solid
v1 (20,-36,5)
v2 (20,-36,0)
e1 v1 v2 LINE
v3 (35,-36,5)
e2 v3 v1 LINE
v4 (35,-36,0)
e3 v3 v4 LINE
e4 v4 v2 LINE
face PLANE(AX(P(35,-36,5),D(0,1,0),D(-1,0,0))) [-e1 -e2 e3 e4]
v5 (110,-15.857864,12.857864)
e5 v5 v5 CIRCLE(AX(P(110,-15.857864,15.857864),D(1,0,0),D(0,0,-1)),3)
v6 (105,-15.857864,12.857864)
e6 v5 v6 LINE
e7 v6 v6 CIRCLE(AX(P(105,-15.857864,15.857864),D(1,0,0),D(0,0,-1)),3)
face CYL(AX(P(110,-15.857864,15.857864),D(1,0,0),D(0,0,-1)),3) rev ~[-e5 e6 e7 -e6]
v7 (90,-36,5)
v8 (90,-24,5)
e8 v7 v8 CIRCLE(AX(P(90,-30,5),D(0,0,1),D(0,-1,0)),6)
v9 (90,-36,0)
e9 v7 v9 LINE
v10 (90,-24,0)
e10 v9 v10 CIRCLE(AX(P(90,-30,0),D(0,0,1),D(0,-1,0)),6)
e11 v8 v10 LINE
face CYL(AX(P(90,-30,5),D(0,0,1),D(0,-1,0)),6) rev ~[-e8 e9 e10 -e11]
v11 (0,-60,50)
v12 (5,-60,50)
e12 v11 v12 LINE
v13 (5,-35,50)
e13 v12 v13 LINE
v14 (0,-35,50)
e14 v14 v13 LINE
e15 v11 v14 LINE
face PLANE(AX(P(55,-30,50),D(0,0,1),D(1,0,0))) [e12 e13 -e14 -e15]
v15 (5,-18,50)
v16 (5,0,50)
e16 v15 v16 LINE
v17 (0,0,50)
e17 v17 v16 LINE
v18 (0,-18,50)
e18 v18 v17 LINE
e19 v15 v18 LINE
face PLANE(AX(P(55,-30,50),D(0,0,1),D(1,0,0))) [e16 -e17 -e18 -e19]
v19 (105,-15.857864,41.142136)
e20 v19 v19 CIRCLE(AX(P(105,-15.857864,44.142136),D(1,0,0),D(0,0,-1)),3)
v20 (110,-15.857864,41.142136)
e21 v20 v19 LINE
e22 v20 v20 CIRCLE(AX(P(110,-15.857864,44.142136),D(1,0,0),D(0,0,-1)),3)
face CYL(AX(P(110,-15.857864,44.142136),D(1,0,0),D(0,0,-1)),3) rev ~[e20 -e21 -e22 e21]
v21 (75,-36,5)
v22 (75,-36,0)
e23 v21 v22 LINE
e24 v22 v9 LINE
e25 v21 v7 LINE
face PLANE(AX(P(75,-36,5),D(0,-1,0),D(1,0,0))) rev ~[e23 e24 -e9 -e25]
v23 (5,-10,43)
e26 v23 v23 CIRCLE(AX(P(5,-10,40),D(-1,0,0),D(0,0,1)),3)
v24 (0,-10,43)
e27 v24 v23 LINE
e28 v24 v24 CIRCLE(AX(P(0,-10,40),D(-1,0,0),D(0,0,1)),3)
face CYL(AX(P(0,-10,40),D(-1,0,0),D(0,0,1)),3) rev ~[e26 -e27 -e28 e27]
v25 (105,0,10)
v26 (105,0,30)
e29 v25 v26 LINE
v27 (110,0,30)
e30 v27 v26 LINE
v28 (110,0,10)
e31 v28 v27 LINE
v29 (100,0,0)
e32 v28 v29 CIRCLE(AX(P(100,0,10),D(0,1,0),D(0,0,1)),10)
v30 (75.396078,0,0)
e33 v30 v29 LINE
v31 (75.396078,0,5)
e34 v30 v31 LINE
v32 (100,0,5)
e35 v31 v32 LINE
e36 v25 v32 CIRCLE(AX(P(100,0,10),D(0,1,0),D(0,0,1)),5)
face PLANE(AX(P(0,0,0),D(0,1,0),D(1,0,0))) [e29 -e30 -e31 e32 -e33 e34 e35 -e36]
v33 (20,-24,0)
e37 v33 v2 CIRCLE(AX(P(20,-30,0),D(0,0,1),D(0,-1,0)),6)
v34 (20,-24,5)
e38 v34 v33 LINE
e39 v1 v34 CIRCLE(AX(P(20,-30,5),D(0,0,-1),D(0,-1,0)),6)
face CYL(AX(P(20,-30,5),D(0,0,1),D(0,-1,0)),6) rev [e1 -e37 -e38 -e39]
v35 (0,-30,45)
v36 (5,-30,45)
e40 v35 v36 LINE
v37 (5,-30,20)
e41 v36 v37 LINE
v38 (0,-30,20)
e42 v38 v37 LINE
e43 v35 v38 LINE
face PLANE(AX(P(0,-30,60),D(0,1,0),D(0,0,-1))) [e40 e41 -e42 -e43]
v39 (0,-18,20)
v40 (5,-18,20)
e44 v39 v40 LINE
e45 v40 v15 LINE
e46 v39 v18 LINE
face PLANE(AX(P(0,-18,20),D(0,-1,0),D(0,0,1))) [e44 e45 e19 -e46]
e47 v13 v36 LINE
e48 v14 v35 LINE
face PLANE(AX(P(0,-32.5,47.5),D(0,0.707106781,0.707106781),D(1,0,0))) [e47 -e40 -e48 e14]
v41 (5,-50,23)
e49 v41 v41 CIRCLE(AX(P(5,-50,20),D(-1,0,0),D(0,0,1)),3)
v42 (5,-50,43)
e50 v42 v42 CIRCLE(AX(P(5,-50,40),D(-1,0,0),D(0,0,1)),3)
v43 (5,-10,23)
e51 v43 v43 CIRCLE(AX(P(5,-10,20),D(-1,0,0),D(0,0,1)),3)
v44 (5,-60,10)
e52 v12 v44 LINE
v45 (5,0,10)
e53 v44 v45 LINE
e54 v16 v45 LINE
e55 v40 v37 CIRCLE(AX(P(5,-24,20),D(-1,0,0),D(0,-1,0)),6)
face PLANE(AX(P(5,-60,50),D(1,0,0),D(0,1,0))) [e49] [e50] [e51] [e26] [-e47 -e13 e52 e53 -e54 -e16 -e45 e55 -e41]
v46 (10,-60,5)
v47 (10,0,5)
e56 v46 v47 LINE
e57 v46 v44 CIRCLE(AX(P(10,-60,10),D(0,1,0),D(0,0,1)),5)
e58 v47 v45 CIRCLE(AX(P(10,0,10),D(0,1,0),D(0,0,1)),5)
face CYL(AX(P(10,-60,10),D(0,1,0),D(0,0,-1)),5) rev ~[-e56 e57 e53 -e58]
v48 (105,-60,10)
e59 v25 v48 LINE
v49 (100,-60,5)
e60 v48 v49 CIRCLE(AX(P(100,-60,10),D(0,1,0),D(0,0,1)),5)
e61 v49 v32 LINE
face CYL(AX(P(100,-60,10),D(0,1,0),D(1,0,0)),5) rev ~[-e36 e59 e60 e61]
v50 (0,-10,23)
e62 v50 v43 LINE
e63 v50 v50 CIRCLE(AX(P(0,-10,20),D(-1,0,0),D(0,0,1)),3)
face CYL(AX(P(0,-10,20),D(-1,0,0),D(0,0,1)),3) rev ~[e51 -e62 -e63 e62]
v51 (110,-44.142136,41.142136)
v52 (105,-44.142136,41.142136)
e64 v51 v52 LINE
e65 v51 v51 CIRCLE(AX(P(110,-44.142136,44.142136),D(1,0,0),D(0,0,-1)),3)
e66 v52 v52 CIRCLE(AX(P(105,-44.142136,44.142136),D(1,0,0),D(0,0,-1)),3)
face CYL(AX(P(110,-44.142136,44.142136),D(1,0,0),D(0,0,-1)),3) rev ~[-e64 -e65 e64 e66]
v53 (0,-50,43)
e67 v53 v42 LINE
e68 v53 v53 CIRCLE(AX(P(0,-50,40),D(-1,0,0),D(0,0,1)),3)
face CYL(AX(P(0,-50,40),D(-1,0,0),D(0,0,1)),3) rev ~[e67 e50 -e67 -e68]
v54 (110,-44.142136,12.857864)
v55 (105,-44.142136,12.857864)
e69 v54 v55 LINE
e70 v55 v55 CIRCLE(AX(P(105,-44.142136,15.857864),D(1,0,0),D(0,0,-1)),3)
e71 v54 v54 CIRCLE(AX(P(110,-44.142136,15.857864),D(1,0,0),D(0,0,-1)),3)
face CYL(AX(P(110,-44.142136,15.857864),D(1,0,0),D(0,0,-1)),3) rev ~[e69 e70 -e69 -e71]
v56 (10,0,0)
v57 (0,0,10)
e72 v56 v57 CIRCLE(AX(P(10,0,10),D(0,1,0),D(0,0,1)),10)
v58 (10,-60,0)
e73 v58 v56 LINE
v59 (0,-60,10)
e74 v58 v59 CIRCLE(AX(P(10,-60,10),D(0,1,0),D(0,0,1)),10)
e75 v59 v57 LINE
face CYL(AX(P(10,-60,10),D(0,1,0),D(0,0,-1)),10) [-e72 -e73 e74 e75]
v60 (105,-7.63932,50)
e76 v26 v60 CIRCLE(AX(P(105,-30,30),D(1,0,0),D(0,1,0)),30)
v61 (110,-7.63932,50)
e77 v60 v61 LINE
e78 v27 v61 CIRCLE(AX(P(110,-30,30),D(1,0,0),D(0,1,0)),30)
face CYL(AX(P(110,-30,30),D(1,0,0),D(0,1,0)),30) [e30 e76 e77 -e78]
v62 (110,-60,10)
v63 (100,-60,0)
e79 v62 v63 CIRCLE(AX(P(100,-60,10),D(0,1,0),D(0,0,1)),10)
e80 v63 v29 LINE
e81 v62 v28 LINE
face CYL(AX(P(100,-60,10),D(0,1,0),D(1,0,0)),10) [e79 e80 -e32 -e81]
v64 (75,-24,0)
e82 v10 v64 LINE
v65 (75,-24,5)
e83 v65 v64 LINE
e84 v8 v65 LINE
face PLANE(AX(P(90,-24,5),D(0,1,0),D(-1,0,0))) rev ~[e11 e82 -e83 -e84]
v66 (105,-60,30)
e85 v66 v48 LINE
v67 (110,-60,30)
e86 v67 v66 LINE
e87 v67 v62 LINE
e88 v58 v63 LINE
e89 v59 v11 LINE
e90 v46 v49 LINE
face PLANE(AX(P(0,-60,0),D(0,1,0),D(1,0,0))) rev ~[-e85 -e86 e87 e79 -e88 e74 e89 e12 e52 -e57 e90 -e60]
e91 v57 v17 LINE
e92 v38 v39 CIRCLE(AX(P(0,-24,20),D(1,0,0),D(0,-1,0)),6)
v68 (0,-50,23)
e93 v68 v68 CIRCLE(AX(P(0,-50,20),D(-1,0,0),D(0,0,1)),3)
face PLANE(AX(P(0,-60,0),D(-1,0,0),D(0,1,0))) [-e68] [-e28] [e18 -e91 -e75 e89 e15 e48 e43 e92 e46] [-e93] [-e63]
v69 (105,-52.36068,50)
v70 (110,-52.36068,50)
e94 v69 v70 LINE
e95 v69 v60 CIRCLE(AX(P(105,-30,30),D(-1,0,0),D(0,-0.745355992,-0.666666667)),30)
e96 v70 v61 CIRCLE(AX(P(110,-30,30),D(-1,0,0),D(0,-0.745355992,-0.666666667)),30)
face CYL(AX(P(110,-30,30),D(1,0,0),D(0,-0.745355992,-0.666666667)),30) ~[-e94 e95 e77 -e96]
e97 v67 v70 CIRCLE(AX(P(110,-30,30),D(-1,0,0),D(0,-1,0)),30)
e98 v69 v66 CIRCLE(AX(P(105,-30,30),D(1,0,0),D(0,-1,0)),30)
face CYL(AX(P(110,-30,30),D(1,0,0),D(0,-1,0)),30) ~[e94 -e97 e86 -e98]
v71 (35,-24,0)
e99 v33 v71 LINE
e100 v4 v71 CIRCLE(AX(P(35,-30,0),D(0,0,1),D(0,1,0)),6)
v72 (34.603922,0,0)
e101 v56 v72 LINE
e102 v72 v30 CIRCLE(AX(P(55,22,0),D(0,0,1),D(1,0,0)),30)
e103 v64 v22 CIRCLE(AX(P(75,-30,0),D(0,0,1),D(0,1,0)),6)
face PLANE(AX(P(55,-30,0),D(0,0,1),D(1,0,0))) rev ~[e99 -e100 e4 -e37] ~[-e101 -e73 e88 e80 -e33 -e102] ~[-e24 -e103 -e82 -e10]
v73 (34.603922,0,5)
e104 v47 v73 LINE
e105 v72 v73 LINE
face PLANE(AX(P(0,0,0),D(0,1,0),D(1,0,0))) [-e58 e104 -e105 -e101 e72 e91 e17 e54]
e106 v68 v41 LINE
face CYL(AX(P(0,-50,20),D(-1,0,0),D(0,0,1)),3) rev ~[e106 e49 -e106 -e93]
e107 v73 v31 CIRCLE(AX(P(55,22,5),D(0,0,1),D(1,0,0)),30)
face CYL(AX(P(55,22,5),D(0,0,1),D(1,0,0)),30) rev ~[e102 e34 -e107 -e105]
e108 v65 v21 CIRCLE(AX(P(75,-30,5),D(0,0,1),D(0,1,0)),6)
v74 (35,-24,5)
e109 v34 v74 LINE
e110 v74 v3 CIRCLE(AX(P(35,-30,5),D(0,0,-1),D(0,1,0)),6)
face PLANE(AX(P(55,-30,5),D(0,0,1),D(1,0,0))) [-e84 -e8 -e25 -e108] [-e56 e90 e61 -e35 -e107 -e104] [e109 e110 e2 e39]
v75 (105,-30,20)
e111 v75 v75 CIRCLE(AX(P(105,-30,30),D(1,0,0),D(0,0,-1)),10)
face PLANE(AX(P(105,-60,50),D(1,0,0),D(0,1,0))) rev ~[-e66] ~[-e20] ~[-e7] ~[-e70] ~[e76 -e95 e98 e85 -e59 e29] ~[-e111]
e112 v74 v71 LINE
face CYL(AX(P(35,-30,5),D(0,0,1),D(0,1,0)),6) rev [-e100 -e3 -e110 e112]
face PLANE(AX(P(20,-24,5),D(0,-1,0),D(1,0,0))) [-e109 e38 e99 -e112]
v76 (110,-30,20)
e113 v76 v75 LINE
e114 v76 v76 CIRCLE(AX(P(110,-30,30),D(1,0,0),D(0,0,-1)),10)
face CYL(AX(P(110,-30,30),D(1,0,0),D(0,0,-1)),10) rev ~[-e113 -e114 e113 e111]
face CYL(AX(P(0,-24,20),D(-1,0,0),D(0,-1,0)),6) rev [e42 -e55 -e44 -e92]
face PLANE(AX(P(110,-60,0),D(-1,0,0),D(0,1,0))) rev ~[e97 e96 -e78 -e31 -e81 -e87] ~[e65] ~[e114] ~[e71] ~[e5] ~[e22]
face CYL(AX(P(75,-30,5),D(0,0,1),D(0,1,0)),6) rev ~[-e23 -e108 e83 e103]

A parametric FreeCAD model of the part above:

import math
import FreeCAD as App
import Part
import Sketcher
from FreeCAD import Vector


def edges_at(feature, points):
    """Names of the edges that pass closest to the given points."""
    edges = feature.Shape.Edges
    near = lambda p: min(range(len(edges)), key=lambda i: edges[i].distToShape(Part.Vertex(*p))[0])
    return sorted({f"Edge{near(p) + 1}" for p in points})


def add_polygon(sketch, points):
    """Adds a closed chain of lines whose ends are joined by coincident constraints."""
    first, n = sketch.GeometryCount, len(points)
    for a, b in zip(points, points[1:] + points[:1]):
        sketch.addGeometry(Part.LineSegment(App.Vector(*a, 0), App.Vector(*b, 0)), False)
    for i in range(n):
        sketch.addConstraint(Sketcher.Constraint("Coincident", first + i, 2, first + (i + 1) % n, 1))

doc = App.newDocument("Part")
params = doc.addObject("Spreadsheet::Sheet", "Params")
for row, (alias, value) in enumerate([
    ("sketch1_width", "110 mm"),
    ("sketch1_height", "60 mm"),
    ("pad1_length", "50 mm"),
    ("sketch2_width", "100 mm"),
    ("sketch2_height", "60 mm"),
    ("pocket1_length", "45 mm"),
    ("fillet_radius", "5 mm"),
    ("fillet2_radius", "10 mm"),
    ("sketch3_diameter", "60 mm"),
    ("sketch4_radius", "6 mm"),
    ("sketch4_width", "15 mm"),
    ("sketch5_radius", "6 mm"),
    ("sketch5_height", "40 mm"),
    ("sketch6_diameter", "6 mm"),
    ("sketch7_diameter", "6 mm"),
    ("sketch8_diameter", "6 mm"),
    ("sketch9_diameter", "6 mm"),
    ("sketch10_radius", "30 mm"),
    ("pad2_length", "5 mm"),
    ("sketch11_radius", "30 mm"),
    ("sketch11_height", "20 mm"),
    ("sketch12_radius", "30 mm"),
    ("sketch12_height", "20 mm"),
    ("sketch13_diameter", "20 mm"),
    ("sketch14_diameter", "6 mm"),
    ("sketch15_diameter", "6 mm"),
    ("sketch16_diameter", "6 mm"),
    ("sketch17_diameter", "6 mm"),
    ("chamfer_size", "5 mm"),
], start=1):
    params.set(f"A{row}", alias)
    params.set(f"B{row}", "=" + value)
    params.setAlias(f"B{row}", alias)

body = doc.addObject("PartDesign::Body", "Body")

sketch1 = body.newObject("Sketcher::SketchObject", "Sketch")
sketch1.AttachmentSupport = (doc.getObject("XY_Plane"), [""])
sketch1.MapMode = "FlatFace"
add_polygon(sketch1, [(0, 0), (0, -60), (110, -60), (110, 0)])
sketch1.addConstraint(Sketcher.Constraint("Vertical", 0))
sketch1.addConstraint(Sketcher.Constraint("Horizontal", 1))
sketch1.addConstraint(Sketcher.Constraint("Vertical", 2))
sketch1.addConstraint(Sketcher.Constraint("Horizontal", 3))
sketch1.addConstraint(Sketcher.Constraint("Coincident", 3, 2, -1, 1))
sketch1.addConstraint(Sketcher.Constraint("DistanceX", 1, 1, 1, 2, 110.0))
sketch1.addConstraint(Sketcher.Constraint("DistanceY", 0, 2, 0, 1, 60.0))
sketch1.setExpression("Constraints[9]", "Params.sketch1_width")
sketch1.setExpression("Constraints[10]", "Params.sketch1_height")
pad1 = body.newObject("PartDesign::Pad", "Pad")
pad1.Profile = sketch1
pad1.setExpression("Length", "Params.pad1_length")

sketch2 = body.newObject("Sketcher::SketchObject", "Sketch001")
sketch2.AttachmentSupport = (doc.getObject("XY_Plane"), [""])
sketch2.MapMode = "FlatFace"
sketch2.AttachmentOffset = App.Placement(Vector(0, 0, 50), App.Rotation())
add_polygon(sketch2, [(5, 0), (5, -60), (105, -60), (105, 0)])
sketch2.addConstraint(Sketcher.Constraint("Vertical", 0))
sketch2.addConstraint(Sketcher.Constraint("Horizontal", 1))
sketch2.addConstraint(Sketcher.Constraint("Vertical", 2))
sketch2.addConstraint(Sketcher.Constraint("Horizontal", 3))
sketch2.addConstraint(Sketcher.Constraint("PointOnObject", 2, 2, -1))
sketch2.addConstraint(Sketcher.Constraint("DistanceX", 1, 1, 1, 2, 100.0))
sketch2.addConstraint(Sketcher.Constraint("DistanceY", 0, 2, 0, 1, 60.0))
sketch2.addConstraint(Sketcher.Constraint("DistanceX", -1, 1, 0, 2, 5.0))
sketch2.setExpression("Constraints[9]", "Params.sketch2_width")
sketch2.setExpression("Constraints[10]", "Params.sketch2_height")
pocket1 = body.newObject("PartDesign::Pocket", "Pocket")
pocket1.Profile = sketch2
pocket1.setExpression("Length", "Params.pocket1_length")
doc.recompute()

fillet = body.newObject("PartDesign::Fillet", "Fillet")
fillet.Base = (pocket1, edges_at(pocket1, [(5, -30, 5), (105, -30, 5)]))
fillet.setExpression("Radius", "Params.fillet_radius")
doc.recompute()

fillet2 = body.newObject("PartDesign::Fillet", "Fillet001")
fillet2.Base = (fillet, edges_at(fillet, [(110, -30, 0), (0, -30, 0)]))
fillet2.setExpression("Radius", "Params.fillet2_radius")

sketch3 = body.newObject("Sketcher::SketchObject", "Sketch002")
sketch3.AttachmentSupport = (doc.getObject("XY_Plane"), [""])
sketch3.MapMode = "FlatFace"
sketch3.AttachmentOffset = App.Placement(Vector(0, 0, 5), App.Rotation())
sketch3.addGeometry(Part.Circle(Vector(55, 22, 0), Vector(0, 0, 1), 30), False)
sketch3.addConstraint(Sketcher.Constraint("Diameter", 0, 60.0))
sketch3.addConstraint(Sketcher.Constraint("DistanceX", -1, 1, 0, 3, 55.0))
sketch3.addConstraint(Sketcher.Constraint("DistanceY", -1, 1, 0, 3, 22.0))
sketch3.setExpression("Constraints[0]", "Params.sketch3_diameter")
pocket2 = body.newObject("PartDesign::Pocket", "Pocket001")
pocket2.Profile = sketch3
pocket2.Type = "ThroughAll"

sketch4 = body.newObject("Sketcher::SketchObject", "Sketch003")
sketch4.AttachmentSupport = (doc.getObject("XY_Plane"), [""])
sketch4.MapMode = "FlatFace"
sketch4.AttachmentOffset = App.Placement(Vector(0, 0, 5), App.Rotation())
sketch4.addGeometry(Part.LineSegment(Vector(35, -24, 0), Vector(20, -24, 0)), False)
sketch4.addGeometry(Part.ArcOfCircle(Part.Circle(Vector(20, -30, 0), Vector(0, 0, 1), 6), math.radians(90), math.radians(270)), False)
sketch4.addGeometry(Part.LineSegment(Vector(20, -36, 0), Vector(35, -36, 0)), False)
sketch4.addGeometry(Part.ArcOfCircle(Part.Circle(Vector(35, -30, 0), Vector(0, 0, 1), 6), math.radians(-90), math.radians(90)), False)
sketch4.addGeometry(Part.LineSegment(Vector(90, -24, 0), Vector(75, -24, 0)), False)
sketch4.addGeometry(Part.ArcOfCircle(Part.Circle(Vector(75, -30, 0), Vector(0, 0, 1), 6), math.radians(90), math.radians(270)), False)
sketch4.addGeometry(Part.LineSegment(Vector(75, -36, 0), Vector(90, -36, 0)), False)
sketch4.addGeometry(Part.ArcOfCircle(Part.Circle(Vector(90, -30, 0), Vector(0, 0, 1), 6), math.radians(-90), math.radians(90)), False)
sketch4.addConstraint(Sketcher.Constraint("Tangent", 0, 2, 1, 1))
sketch4.addConstraint(Sketcher.Constraint("Tangent", 1, 2, 2, 1))
sketch4.addConstraint(Sketcher.Constraint("Tangent", 2, 2, 3, 1))
sketch4.addConstraint(Sketcher.Constraint("Tangent", 3, 2, 0, 1))
sketch4.addConstraint(Sketcher.Constraint("Tangent", 4, 2, 5, 1))
sketch4.addConstraint(Sketcher.Constraint("Tangent", 5, 2, 6, 1))
sketch4.addConstraint(Sketcher.Constraint("Tangent", 6, 2, 7, 1))
sketch4.addConstraint(Sketcher.Constraint("Tangent", 7, 2, 4, 1))
sketch4.addConstraint(Sketcher.Constraint("Horizontal", 0))
sketch4.addConstraint(Sketcher.Constraint("Horizontal", 2))
sketch4.addConstraint(Sketcher.Constraint("Horizontal", 4))
sketch4.addConstraint(Sketcher.Constraint("Horizontal", 6))
sketch4.addConstraint(Sketcher.Constraint("Equal", 3, 5))
sketch4.addConstraint(Sketcher.Constraint("Horizontal", 3, 3, 5, 3))
sketch4.addConstraint(Sketcher.Constraint("Equal", 2, 4))
sketch4.addConstraint(Sketcher.Constraint("Radius", 1, 6.0))
sketch4.addConstraint(Sketcher.Constraint("DistanceX", 0, 2, 0, 1, 15.0))
sketch4.addConstraint(Sketcher.Constraint("DistanceX", -1, 1, 1, 3, 20.0))
sketch4.addConstraint(Sketcher.Constraint("DistanceY", 1, 3, -1, 1, 30.0))
sketch4.addConstraint(Sketcher.Constraint("DistanceX", -1, 1, 5, 3, 75.0))
sketch4.setExpression("Constraints[15]", "Params.sketch4_radius")
sketch4.setExpression("Constraints[16]", "Params.sketch4_width")
pocket3 = body.newObject("PartDesign::Pocket", "Pocket002")
pocket3.Profile = sketch4
pocket3.Type = "ThroughAll"

sketch5 = body.newObject("Sketcher::SketchObject", "Sketch004")
sketch5.AttachmentSupport = (doc.getObject("YZ_Plane"), [""])
sketch5.MapMode = "FlatFace"
sketch5.addGeometry(Part.LineSegment(Vector(-30, 20, 0), Vector(-30, 60, 0)), False)
sketch5.addGeometry(Part.ArcOfCircle(Part.Circle(Vector(-24, 60, 0), Vector(0, 0, 1), 6), math.radians(0), math.radians(180)), False)
sketch5.addGeometry(Part.LineSegment(Vector(-18, 60, 0), Vector(-18, 20, 0)), False)
sketch5.addGeometry(Part.ArcOfCircle(Part.Circle(Vector(-24, 20, 0), Vector(0, 0, 1), 6), math.radians(180), math.radians(360)), False)
sketch5.addConstraint(Sketcher.Constraint("Tangent", 0, 2, 1, 2))
sketch5.addConstraint(Sketcher.Constraint("Tangent", 1, 1, 2, 1))
sketch5.addConstraint(Sketcher.Constraint("Tangent", 2, 2, 3, 2))
sketch5.addConstraint(Sketcher.Constraint("Tangent", 3, 1, 0, 1))
sketch5.addConstraint(Sketcher.Constraint("Vertical", 0))
sketch5.addConstraint(Sketcher.Constraint("Vertical", 2))
sketch5.addConstraint(Sketcher.Constraint("Radius", 1, 6.0))
sketch5.addConstraint(Sketcher.Constraint("DistanceY", 0, 1, 0, 2, 40.0))
sketch5.addConstraint(Sketcher.Constraint("DistanceX", 1, 3, -1, 1, 24.0))
sketch5.addConstraint(Sketcher.Constraint("DistanceY", -1, 1, 1, 3, 60.0))
sketch5.setExpression("Constraints[6]", "Params.sketch5_radius")
sketch5.setExpression("Constraints[7]", "Params.sketch5_height")
pocket4 = body.newObject("PartDesign::Pocket", "Pocket003")
pocket4.Profile = sketch5
pocket4.Type = "UpToFirst"
pocket4.Reversed = True

sketch6 = body.newObject("Sketcher::SketchObject", "Sketch005")
sketch6.AttachmentSupport = (doc.getObject("YZ_Plane"), [""])
sketch6.MapMode = "FlatFace"
sketch6.addGeometry(Part.Circle(Vector(-10, 20, 0), Vector(0, 0, 1), 3), False)
sketch6.addConstraint(Sketcher.Constraint("Diameter", 0, 6.0))
sketch6.addConstraint(Sketcher.Constraint("DistanceX", 0, 3, -1, 1, 10.0))
sketch6.addConstraint(Sketcher.Constraint("DistanceY", -1, 1, 0, 3, 20.0))
sketch6.setExpression("Constraints[0]", "Params.sketch6_diameter")
pocket5 = body.newObject("PartDesign::Pocket", "Pocket004")
pocket5.Profile = sketch6
pocket5.Type = "UpToFirst"
pocket5.Reversed = True

sketch7 = body.newObject("Sketcher::SketchObject", "Sketch006")
sketch7.AttachmentSupport = (doc.getObject("YZ_Plane"), [""])
sketch7.MapMode = "FlatFace"
sketch7.addGeometry(Part.Circle(Vector(-10, 40, 0), Vector(0, 0, 1), 3), False)
sketch7.addConstraint(Sketcher.Constraint("Diameter", 0, 6.0))
sketch7.addConstraint(Sketcher.Constraint("DistanceX", 0, 3, -1, 1, 10.0))
sketch7.addConstraint(Sketcher.Constraint("DistanceY", -1, 1, 0, 3, 40.0))
sketch7.setExpression("Constraints[0]", "Params.sketch7_diameter")
pocket6 = body.newObject("PartDesign::Pocket", "Pocket005")
pocket6.Profile = sketch7
pocket6.Type = "UpToFirst"
pocket6.Reversed = True

sketch8 = body.newObject("Sketcher::SketchObject", "Sketch007")
sketch8.AttachmentSupport = (doc.getObject("YZ_Plane"), [""])
sketch8.MapMode = "FlatFace"
sketch8.addGeometry(Part.Circle(Vector(-50, 40, 0), Vector(0, 0, 1), 3), False)
sketch8.addConstraint(Sketcher.Constraint("Diameter", 0, 6.0))
sketch8.addConstraint(Sketcher.Constraint("DistanceX", 0, 3, -1, 1, 50.0))
sketch8.addConstraint(Sketcher.Constraint("DistanceY", -1, 1, 0, 3, 40.0))
sketch8.setExpression("Constraints[0]", "Params.sketch8_diameter")
pocket7 = body.newObject("PartDesign::Pocket", "Pocket006")
pocket7.Profile = sketch8
pocket7.Type = "UpToFirst"
pocket7.Reversed = True

sketch9 = body.newObject("Sketcher::SketchObject", "Sketch008")
sketch9.AttachmentSupport = (doc.getObject("YZ_Plane"), [""])
sketch9.MapMode = "FlatFace"
sketch9.addGeometry(Part.Circle(Vector(-50, 20, 0), Vector(0, 0, 1), 3), False)
sketch9.addConstraint(Sketcher.Constraint("Diameter", 0, 6.0))
sketch9.addConstraint(Sketcher.Constraint("DistanceX", 0, 3, -1, 1, 50.0))
sketch9.addConstraint(Sketcher.Constraint("DistanceY", -1, 1, 0, 3, 20.0))
sketch9.setExpression("Constraints[0]", "Params.sketch9_diameter")
pocket8 = body.newObject("PartDesign::Pocket", "Pocket007")
pocket8.Profile = sketch9
pocket8.Type = "UpToFirst"
pocket8.Reversed = True

sketch10 = body.newObject("Sketcher::SketchObject", "Sketch009")
sketch10.AttachmentSupport = (doc.getObject("YZ_Plane"), [""])
sketch10.MapMode = "FlatFace"
sketch10.AttachmentOffset = App.Placement(Vector(0, 0, 110), App.Rotation())
sketch10.addGeometry(Part.LineSegment(Vector(-52, 10, 0), Vector(-8, 10, 0)), False)
sketch10.addGeometry(Part.ArcOfCircle(Part.Circle(Vector(-30, 30, 0), Vector(0, 0, 1), 30), math.radians(-42), math.radians(222)), False)
sketch10.addConstraint(Sketcher.Constraint("Coincident", 0, 1, 1, 2))
sketch10.addConstraint(Sketcher.Constraint("Coincident", 1, 1, 0, 2))
sketch10.addConstraint(Sketcher.Constraint("Horizontal", 0))
sketch10.addConstraint(Sketcher.Constraint("Radius", 1, 30.0))
sketch10.addConstraint(Sketcher.Constraint("DistanceX", 1, 3, -1, 1, 30.0))
sketch10.addConstraint(Sketcher.Constraint("DistanceY", -1, 1, 1, 3, 30.0))
sketch10.addConstraint(Sketcher.Constraint("DistanceY", -1, 1, 0, 1, 10.0))
sketch10.setExpression("Constraints[3]", "Params.sketch10_radius")
pad2 = body.newObject("PartDesign::Pad", "Pad001")
pad2.Profile = sketch10
pad2.setExpression("Length", "Params.pad2_length")
pad2.Reversed = True

sketch11 = body.newObject("Sketcher::SketchObject", "Sketch010")
sketch11.AttachmentSupport = (doc.getObject("YZ_Plane"), [""])
sketch11.MapMode = "FlatFace"
sketch11.AttachmentOffset = App.Placement(Vector(0, 0, 110), App.Rotation())
sketch11.addGeometry(Part.LineSegment(Vector(0, 50, 0), Vector(-8, 50, 0)), False)
sketch11.addGeometry(Part.ArcOfCircle(Part.Circle(Vector(-30, 30, 0), Vector(0, 0, 1), 30), math.radians(0), math.radians(42)), False)
sketch11.addGeometry(Part.LineSegment(Vector(0, 30, 0), Vector(0, 50, 0)), False)
sketch11.addConstraint(Sketcher.Constraint("Coincident", 0, 2, 1, 2))
sketch11.addConstraint(Sketcher.Constraint("Tangent", 1, 1, 2, 1))
sketch11.addConstraint(Sketcher.Constraint("Coincident", 2, 2, 0, 1))
sketch11.addConstraint(Sketcher.Constraint("Horizontal", 0))
sketch11.addConstraint(Sketcher.Constraint("Vertical", 2))
sketch11.addConstraint(Sketcher.Constraint("PointOnObject", 1, 1, -2))
sketch11.addConstraint(Sketcher.Constraint("Radius", 1, 30.0))
sketch11.addConstraint(Sketcher.Constraint("DistanceY", 2, 1, 2, 2, 20.0))
sketch11.addConstraint(Sketcher.Constraint("DistanceY", -1, 1, 1, 3, 30.0))
sketch11.setExpression("Constraints[6]", "Params.sketch11_radius")
sketch11.setExpression("Constraints[7]", "Params.sketch11_height")
pocket9 = body.newObject("PartDesign::Pocket", "Pocket008")
pocket9.Profile = sketch11
pocket9.Type = "UpToFirst"

sketch12 = body.newObject("Sketcher::SketchObject", "Sketch011")
sketch12.AttachmentSupport = (doc.getObject("YZ_Plane"), [""])
sketch12.MapMode = "FlatFace"
sketch12.AttachmentOffset = App.Placement(Vector(0, 0, 110), App.Rotation())
sketch12.addGeometry(Part.LineSegment(Vector(-60, 50, 0), Vector(-60, 30, 0)), False)
sketch12.addGeometry(Part.ArcOfCircle(Part.Circle(Vector(-30, 30, 0), Vector(0, 0, 1), 30), math.radians(138), math.radians(180)), False)
sketch12.addGeometry(Part.LineSegment(Vector(-52, 50, 0), Vector(-60, 50, 0)), False)
sketch12.addConstraint(Sketcher.Constraint("Tangent", 0, 2, 1, 2))
sketch12.addConstraint(Sketcher.Constraint("Coincident", 1, 1, 2, 1))
sketch12.addConstraint(Sketcher.Constraint("Coincident", 2, 2, 0, 1))
sketch12.addConstraint(Sketcher.Constraint("Vertical", 0))
sketch12.addConstraint(Sketcher.Constraint("Horizontal", 2))
sketch12.addConstraint(Sketcher.Constraint("Radius", 1, 30.0))
sketch12.addConstraint(Sketcher.Constraint("DistanceY", 0, 2, 0, 1, 20.0))
sketch12.addConstraint(Sketcher.Constraint("DistanceX", 1, 3, -1, 1, 30.0))
sketch12.addConstraint(Sketcher.Constraint("DistanceY", -1, 1, 1, 3, 30.0))
sketch12.setExpression("Constraints[5]", "Params.sketch12_radius")
sketch12.setExpression("Constraints[6]", "Params.sketch12_height")
pocket10 = body.newObject("PartDesign::Pocket", "Pocket009")
pocket10.Profile = sketch12
pocket10.Type = "UpToFirst"

sketch13 = body.newObject("Sketcher::SketchObject", "Sketch012")
sketch13.AttachmentSupport = (doc.getObject("YZ_Plane"), [""])
sketch13.MapMode = "FlatFace"
sketch13.AttachmentOffset = App.Placement(Vector(0, 0, 110), App.Rotation())
sketch13.addGeometry(Part.Circle(Vector(-30, 30, 0), Vector(0, 0, 1), 10), False)
sketch13.addConstraint(Sketcher.Constraint("Diameter", 0, 20.0))
sketch13.addConstraint(Sketcher.Constraint("DistanceX", 0, 3, -1, 1, 30.0))
sketch13.addConstraint(Sketcher.Constraint("DistanceY", -1, 1, 0, 3, 30.0))
sketch13.setExpression("Constraints[0]", "Params.sketch13_diameter")
pocket11 = body.newObject("PartDesign::Pocket", "Pocket010")
pocket11.Profile = sketch13
pocket11.Type = "UpToFirst"

sketch14 = body.newObject("Sketcher::SketchObject", "Sketch013")
sketch14.AttachmentSupport = (doc.getObject("YZ_Plane"), [""])
sketch14.MapMode = "FlatFace"
sketch14.AttachmentOffset = App.Placement(Vector(0, 0, 110), App.Rotation())
sketch14.addGeometry(Part.Circle(Vector(-15.9, 44.1, 0), Vector(0, 0, 1), 3), False)
sketch14.addConstraint(Sketcher.Constraint("Diameter", 0, 6.0))
sketch14.addConstraint(Sketcher.Constraint("DistanceX", 0, 3, -1, 1, 15.857864))
sketch14.addConstraint(Sketcher.Constraint("DistanceY", -1, 1, 0, 3, 44.142136))
sketch14.setExpression("Constraints[0]", "Params.sketch14_diameter")
pocket12 = body.newObject("PartDesign::Pocket", "Pocket011")
pocket12.Profile = sketch14
pocket12.Type = "UpToFirst"

sketch15 = body.newObject("Sketcher::SketchObject", "Sketch014")
sketch15.AttachmentSupport = (doc.getObject("YZ_Plane"), [""])
sketch15.MapMode = "FlatFace"
sketch15.AttachmentOffset = App.Placement(Vector(0, 0, 110), App.Rotation())
sketch15.addGeometry(Part.Circle(Vector(-15.9, 15.9, 0), Vector(0, 0, 1), 3), False)
sketch15.addConstraint(Sketcher.Constraint("Diameter", 0, 6.0))
sketch15.addConstraint(Sketcher.Constraint("DistanceX", 0, 3, -1, 1, 15.857864))
sketch15.addConstraint(Sketcher.Constraint("DistanceY", -1, 1, 0, 3, 15.857864))
sketch15.setExpression("Constraints[0]", "Params.sketch15_diameter")
pocket13 = body.newObject("PartDesign::Pocket", "Pocket012")
pocket13.Profile = sketch15
pocket13.Type = "UpToFirst"

sketch16 = body.newObject("Sketcher::SketchObject", "Sketch015")
sketch16.AttachmentSupport = (doc.getObject("YZ_Plane"), [""])
sketch16.MapMode = "FlatFace"
sketch16.AttachmentOffset = App.Placement(Vector(0, 0, 110), App.Rotation())
sketch16.addGeometry(Part.Circle(Vector(-44.1, 15.9, 0), Vector(0, 0, 1), 3), False)
sketch16.addConstraint(Sketcher.Constraint("Diameter", 0, 6.0))
sketch16.addConstraint(Sketcher.Constraint("DistanceX", 0, 3, -1, 1, 44.142136))
sketch16.addConstraint(Sketcher.Constraint("DistanceY", -1, 1, 0, 3, 15.857864))
sketch16.setExpression("Constraints[0]", "Params.sketch16_diameter")
pocket14 = body.newObject("PartDesign::Pocket", "Pocket013")
pocket14.Profile = sketch16
pocket14.Type = "UpToFirst"

sketch17 = body.newObject("Sketcher::SketchObject", "Sketch016")
sketch17.AttachmentSupport = (doc.getObject("YZ_Plane"), [""])
sketch17.MapMode = "FlatFace"
sketch17.AttachmentOffset = App.Placement(Vector(0, 0, 110), App.Rotation())
sketch17.addGeometry(Part.Circle(Vector(-44.1, 44.1, 0), Vector(0, 0, 1), 3), False)
sketch17.addConstraint(Sketcher.Constraint("Diameter", 0, 6.0))
sketch17.addConstraint(Sketcher.Constraint("DistanceX", 0, 3, -1, 1, 44.142136))
sketch17.addConstraint(Sketcher.Constraint("DistanceY", -1, 1, 0, 3, 44.142136))
sketch17.setExpression("Constraints[0]", "Params.sketch17_diameter")
pocket15 = body.newObject("PartDesign::Pocket", "Pocket014")
pocket15.Profile = sketch17
pocket15.Type = "UpToFirst"
doc.recompute()

chamfer = body.newObject("PartDesign::Chamfer", "Chamfer")
chamfer.Base = (pocket15, edges_at(pocket15, [(2.5, -30, 50)]))
chamfer.setExpression("Size", "Params.chamfer_size")

doc.recompute()
